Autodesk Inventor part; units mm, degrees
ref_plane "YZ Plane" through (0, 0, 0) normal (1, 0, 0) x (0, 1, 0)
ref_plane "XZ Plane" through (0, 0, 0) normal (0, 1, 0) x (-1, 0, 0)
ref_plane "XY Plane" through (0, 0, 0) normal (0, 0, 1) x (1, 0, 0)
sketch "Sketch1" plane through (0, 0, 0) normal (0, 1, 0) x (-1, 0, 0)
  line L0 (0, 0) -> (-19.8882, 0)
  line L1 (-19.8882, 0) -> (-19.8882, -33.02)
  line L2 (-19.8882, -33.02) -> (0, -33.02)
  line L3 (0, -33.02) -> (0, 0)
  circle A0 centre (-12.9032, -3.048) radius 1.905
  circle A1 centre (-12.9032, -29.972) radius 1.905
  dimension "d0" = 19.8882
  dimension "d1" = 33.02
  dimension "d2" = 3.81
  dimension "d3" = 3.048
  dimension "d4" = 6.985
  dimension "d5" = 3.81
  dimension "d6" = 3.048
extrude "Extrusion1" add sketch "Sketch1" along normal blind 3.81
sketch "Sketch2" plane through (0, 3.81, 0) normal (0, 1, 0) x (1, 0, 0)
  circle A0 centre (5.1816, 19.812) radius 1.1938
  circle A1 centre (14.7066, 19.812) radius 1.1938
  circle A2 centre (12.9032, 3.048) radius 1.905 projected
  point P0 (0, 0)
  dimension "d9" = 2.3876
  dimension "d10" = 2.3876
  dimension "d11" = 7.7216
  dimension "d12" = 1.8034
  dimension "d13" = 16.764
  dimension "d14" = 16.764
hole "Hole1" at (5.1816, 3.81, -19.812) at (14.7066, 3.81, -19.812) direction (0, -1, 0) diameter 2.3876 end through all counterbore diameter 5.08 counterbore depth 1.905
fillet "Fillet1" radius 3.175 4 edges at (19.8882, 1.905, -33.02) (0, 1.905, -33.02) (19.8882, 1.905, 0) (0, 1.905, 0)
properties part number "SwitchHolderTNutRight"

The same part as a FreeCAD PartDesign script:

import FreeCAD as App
import Part
import Sketcher

V = App.Vector
Q = App.Units.Quantity


def edges_at(feature, points):
    """Names of the edges that pass closest to the given points."""
    edges = feature.Shape.Edges
    near = lambda p: min(range(len(edges)), key=lambda i: edges[i].distToShape(Part.Vertex(*p))[0])
    return sorted({f"Edge{near(p) + 1}" for p in points})


def add_polygon(sketch, points):
    """Adds a closed chain of lines whose ends are joined by coincident constraints."""
    first, n = sketch.GeometryCount, len(points)
    for a, b in zip(points, points[1:] + points[:1]):
        sketch.addGeometry(Part.LineSegment(App.Vector(*a, 0), App.Vector(*b, 0)), False)
    for i in range(n):
        sketch.addConstraint(Sketcher.Constraint("Coincident", first + i, 2, first + (i + 1) % n, 1))

doc = App.newDocument("Part")
params = doc.addObject("Spreadsheet::Sheet", "Params")
for row, (alias, value) in enumerate([
    ("sketch1_diameter", "0.15 in"),
    ("sketch1_height", "1.3 in"),
    ("sketch1_width", "0.783 in"),
    ("pad1_length", "0.15 in"),
    ("sketch2_diameter", "0.094 in"),
    ("hole_diameter", "0.094 in"),
    ("hole_cbore_diameter", "0.2 in"),
    ("hole_cbore_depth", "0.075 in"),
    ("fillet_radius", "0.125 in"),
], start=1):
    params.set(f"A{row}", alias)
    params.set(f"B{row}", "=" + value)
    params.setAlias(f"B{row}", alias)

body = doc.addObject("PartDesign::Body", "Body")

sketch1 = body.newObject("Sketcher::SketchObject", "Sketch")
sketch1.AttachmentSupport = (doc.getObject("XZ_Plane"), [""])
sketch1.MapMode = "FlatFace"
add_polygon(sketch1, [(0, -33), (0, 0), (19.9, 0), (19.9, -33)])
sketch1.addGeometry(Part.Circle(V(12.9, -30, 0), V(0, 0, 1), 1.9), False)
sketch1.addGeometry(Part.Circle(V(12.9, -3, 0), V(0, 0, 1), 1.9), False)
sketch1.addConstraint([
    Sketcher.Constraint("Vertical", 0),
    Sketcher.Constraint("Horizontal", 1),
    Sketcher.Constraint("Vertical", 2),
    Sketcher.Constraint("Horizontal", 3),
    Sketcher.Constraint("Coincident", 0, 2, -1, 1),
    Sketcher.Constraint("Equal", 4, 5),
    Sketcher.Constraint("Vertical", 4, 3, 5, 3),
    Sketcher.Constraint("Diameter", 4, Q("0.15 in")),
    Sketcher.Constraint("DistanceY", 0, 1, 0, 2, Q("1.3 in")),
    Sketcher.Constraint("DistanceX", 1, 1, 1, 2, Q("0.783 in")),
    Sketcher.Constraint("DistanceY", 5, 3, -1, 1, Q("0.12 in")),
    Sketcher.Constraint("DistanceY", 2, 2, 4, 3, Q("0.12 in")),
    Sketcher.Constraint("DistanceX", 5, 3, 1, 2, Q("0.275 in")),
])
sketch1.setExpression("Constraints[11]", "Params.sketch1_diameter")
sketch1.setExpression("Constraints[12]", "Params.sketch1_height")
sketch1.setExpression("Constraints[13]", "Params.sketch1_width")
pad1 = body.newObject("PartDesign::Pad", "Pad")
pad1.Profile = sketch1
pad1.setExpression("Length", "Params.pad1_length")
pad1.Reversed = True

sketch2 = body.newObject("Sketcher::SketchObject", "Sketch001")
sketch2.AttachmentSupport = (doc.getObject("XZ_Plane"), [""])
sketch2.MapMode = "FlatFace"
sketch2.AttachmentOffset = App.Placement(V(0, 0, -0.15 * 25.4), App.Rotation())
sketch2.addGeometry([
    Part.Circle(V(5.2, -19.8, 0), V(0, 0, 1), 1.2),
    Part.Circle(V(14.7, -19.8, 0), V(0, 0, 1), 1.2),
], False)
sketch2.addConstraint([
    Sketcher.Constraint("Equal", 0, 1),
    Sketcher.Constraint("Horizontal", 0, 3, 1, 3),
    Sketcher.Constraint("Diameter", 0, Q("0.094 in")),
    Sketcher.Constraint("DistanceY", 0, 3, -1, 1, Q("0.78 in")),
    Sketcher.Constraint("DistanceX", -1, 1, 0, 3, Q("0.204 in")),
    Sketcher.Constraint("DistanceX", -1, 1, 1, 3, Q("0.579 in")),
])
sketch2.setExpression("Constraints[2]", "Params.sketch2_diameter")
doc.recompute()
hole = body.newObject("PartDesign::Hole", "Hole")
hole.Profile = sketch2
hole.ThreadType = "None"
hole.setExpression("Diameter", "Params.hole_diameter")
hole.DepthType = "ThroughAll"
hole.HoleCutType = "Counterbore"
hole.setExpression("HoleCutDiameter", "Params.hole_cbore_diameter")
hole.setExpression("HoleCutDepth", "Params.hole_cbore_depth")
hole.Reversed = True
doc.recompute()

fillet = body.newObject("PartDesign::Fillet", "Fillet")
fillet.Base = (hole, edges_at(hole, [
    (19.888, 1.905, -33.02),
    (0, 1.905, -33.02),
    (19.888, 1.905, 0),
    (0, 1.905, 0),
]))
fillet.setExpression("Radius", "Params.fillet_radius")

doc.recompute()
